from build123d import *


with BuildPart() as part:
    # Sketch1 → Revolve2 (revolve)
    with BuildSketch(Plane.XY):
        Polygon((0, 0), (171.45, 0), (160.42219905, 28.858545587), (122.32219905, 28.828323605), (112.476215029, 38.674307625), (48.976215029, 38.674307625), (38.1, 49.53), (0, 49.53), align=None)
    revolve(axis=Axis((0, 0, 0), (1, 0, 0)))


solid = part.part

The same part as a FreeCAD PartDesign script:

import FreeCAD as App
import Part
import Sketcher
from FreeCAD import Vector
Q = App.Units.Quantity

doc = App.newDocument("Part")
body = doc.addObject("PartDesign::Body", "Body")

# Sketch on XY plane
sketch1 = body.newObject("Sketcher::SketchObject", "Sketch")
sketch1.AttachmentSupport = (doc.getObject("XY_Plane"), [""])
sketch1.MapMode = "FlatFace"
sketch1.addGeometry([
    Part.LineSegment(Vector(0, 0, 0), Vector(171, 0, 0)),  # 0
    Part.LineSegment(Vector(171, 0, 0), Vector(160, 29, 0)),  # 1
    Part.LineSegment(Vector(160, 29, 0), Vector(122, 29, 0)),  # 2
    Part.LineSegment(Vector(122, 29, 0), Vector(112, 39, 0)),  # 3
    Part.LineSegment(Vector(112, 39, 0), Vector(49, 39, 0)),  # 4
    Part.LineSegment(Vector(49, 39, 0), Vector(38, 50, 0)),  # 5
    Part.LineSegment(Vector(38, 50, 0), Vector(0, 50, 0)),  # 6
    Part.LineSegment(Vector(0, 50, 0), Vector(0, 0, 0)),  # 7
], False)
sketch1.addConstraint([
    Sketcher.Constraint("Coincident", 0, 2, 1, 1),
    Sketcher.Constraint("Coincident", 1, 2, 2, 1),
    Sketcher.Constraint("Coincident", 2, 2, 3, 1),
    Sketcher.Constraint("Coincident", 3, 2, 4, 1),
    Sketcher.Constraint("Coincident", 4, 2, 5, 1),
    Sketcher.Constraint("Coincident", 5, 2, 6, 1),
    Sketcher.Constraint("Coincident", 6, 2, 7, 1),
    Sketcher.Constraint("Coincident", 7, 2, 0, 1),
    Sketcher.Constraint("Horizontal", 0),
    Sketcher.Constraint("Horizontal", 4),
    Sketcher.Constraint("Horizontal", 6),
    Sketcher.Constraint("Vertical", 7),
    Sketcher.Constraint("Coincident", 7, 2, -1, 1),
    Sketcher.Constraint("DistanceX", 4, 2, 4, 1, Q("2.5 in")),
    Sketcher.Constraint("DistanceX", 6, 2, 6, 1, Q("1.5 in")),
    Sketcher.Constraint("Angle", 3, Q("135 deg")),
    Sketcher.Constraint("DistanceX", 0, 1, 0, 2, Q("6.75 in")),
    Sketcher.Constraint("DistanceY", 7, 2, 7, 1, Q("1.95 in")),
    Sketcher.Constraint("DistanceX", 2, 2, 1, 2, Q("1.5 in")),
    Sketcher.Constraint("DistanceX", -1, 1, 1, 2, 160.422199),
    Sketcher.Constraint("Distance", 1, 30.893819),
    Sketcher.Constraint("DistanceY", 2, 2, 1, 2, 0.030222),
    Sketcher.Constraint("Distance", 3, 13.924324),
])
revolution = body.newObject("PartDesign::Revolution", "Revolution")
revolution.Profile = sketch1
revolution.ReferenceAxis = (sketch1, ["H_Axis"])
revolution.Angle = 360

doc.recompute()
